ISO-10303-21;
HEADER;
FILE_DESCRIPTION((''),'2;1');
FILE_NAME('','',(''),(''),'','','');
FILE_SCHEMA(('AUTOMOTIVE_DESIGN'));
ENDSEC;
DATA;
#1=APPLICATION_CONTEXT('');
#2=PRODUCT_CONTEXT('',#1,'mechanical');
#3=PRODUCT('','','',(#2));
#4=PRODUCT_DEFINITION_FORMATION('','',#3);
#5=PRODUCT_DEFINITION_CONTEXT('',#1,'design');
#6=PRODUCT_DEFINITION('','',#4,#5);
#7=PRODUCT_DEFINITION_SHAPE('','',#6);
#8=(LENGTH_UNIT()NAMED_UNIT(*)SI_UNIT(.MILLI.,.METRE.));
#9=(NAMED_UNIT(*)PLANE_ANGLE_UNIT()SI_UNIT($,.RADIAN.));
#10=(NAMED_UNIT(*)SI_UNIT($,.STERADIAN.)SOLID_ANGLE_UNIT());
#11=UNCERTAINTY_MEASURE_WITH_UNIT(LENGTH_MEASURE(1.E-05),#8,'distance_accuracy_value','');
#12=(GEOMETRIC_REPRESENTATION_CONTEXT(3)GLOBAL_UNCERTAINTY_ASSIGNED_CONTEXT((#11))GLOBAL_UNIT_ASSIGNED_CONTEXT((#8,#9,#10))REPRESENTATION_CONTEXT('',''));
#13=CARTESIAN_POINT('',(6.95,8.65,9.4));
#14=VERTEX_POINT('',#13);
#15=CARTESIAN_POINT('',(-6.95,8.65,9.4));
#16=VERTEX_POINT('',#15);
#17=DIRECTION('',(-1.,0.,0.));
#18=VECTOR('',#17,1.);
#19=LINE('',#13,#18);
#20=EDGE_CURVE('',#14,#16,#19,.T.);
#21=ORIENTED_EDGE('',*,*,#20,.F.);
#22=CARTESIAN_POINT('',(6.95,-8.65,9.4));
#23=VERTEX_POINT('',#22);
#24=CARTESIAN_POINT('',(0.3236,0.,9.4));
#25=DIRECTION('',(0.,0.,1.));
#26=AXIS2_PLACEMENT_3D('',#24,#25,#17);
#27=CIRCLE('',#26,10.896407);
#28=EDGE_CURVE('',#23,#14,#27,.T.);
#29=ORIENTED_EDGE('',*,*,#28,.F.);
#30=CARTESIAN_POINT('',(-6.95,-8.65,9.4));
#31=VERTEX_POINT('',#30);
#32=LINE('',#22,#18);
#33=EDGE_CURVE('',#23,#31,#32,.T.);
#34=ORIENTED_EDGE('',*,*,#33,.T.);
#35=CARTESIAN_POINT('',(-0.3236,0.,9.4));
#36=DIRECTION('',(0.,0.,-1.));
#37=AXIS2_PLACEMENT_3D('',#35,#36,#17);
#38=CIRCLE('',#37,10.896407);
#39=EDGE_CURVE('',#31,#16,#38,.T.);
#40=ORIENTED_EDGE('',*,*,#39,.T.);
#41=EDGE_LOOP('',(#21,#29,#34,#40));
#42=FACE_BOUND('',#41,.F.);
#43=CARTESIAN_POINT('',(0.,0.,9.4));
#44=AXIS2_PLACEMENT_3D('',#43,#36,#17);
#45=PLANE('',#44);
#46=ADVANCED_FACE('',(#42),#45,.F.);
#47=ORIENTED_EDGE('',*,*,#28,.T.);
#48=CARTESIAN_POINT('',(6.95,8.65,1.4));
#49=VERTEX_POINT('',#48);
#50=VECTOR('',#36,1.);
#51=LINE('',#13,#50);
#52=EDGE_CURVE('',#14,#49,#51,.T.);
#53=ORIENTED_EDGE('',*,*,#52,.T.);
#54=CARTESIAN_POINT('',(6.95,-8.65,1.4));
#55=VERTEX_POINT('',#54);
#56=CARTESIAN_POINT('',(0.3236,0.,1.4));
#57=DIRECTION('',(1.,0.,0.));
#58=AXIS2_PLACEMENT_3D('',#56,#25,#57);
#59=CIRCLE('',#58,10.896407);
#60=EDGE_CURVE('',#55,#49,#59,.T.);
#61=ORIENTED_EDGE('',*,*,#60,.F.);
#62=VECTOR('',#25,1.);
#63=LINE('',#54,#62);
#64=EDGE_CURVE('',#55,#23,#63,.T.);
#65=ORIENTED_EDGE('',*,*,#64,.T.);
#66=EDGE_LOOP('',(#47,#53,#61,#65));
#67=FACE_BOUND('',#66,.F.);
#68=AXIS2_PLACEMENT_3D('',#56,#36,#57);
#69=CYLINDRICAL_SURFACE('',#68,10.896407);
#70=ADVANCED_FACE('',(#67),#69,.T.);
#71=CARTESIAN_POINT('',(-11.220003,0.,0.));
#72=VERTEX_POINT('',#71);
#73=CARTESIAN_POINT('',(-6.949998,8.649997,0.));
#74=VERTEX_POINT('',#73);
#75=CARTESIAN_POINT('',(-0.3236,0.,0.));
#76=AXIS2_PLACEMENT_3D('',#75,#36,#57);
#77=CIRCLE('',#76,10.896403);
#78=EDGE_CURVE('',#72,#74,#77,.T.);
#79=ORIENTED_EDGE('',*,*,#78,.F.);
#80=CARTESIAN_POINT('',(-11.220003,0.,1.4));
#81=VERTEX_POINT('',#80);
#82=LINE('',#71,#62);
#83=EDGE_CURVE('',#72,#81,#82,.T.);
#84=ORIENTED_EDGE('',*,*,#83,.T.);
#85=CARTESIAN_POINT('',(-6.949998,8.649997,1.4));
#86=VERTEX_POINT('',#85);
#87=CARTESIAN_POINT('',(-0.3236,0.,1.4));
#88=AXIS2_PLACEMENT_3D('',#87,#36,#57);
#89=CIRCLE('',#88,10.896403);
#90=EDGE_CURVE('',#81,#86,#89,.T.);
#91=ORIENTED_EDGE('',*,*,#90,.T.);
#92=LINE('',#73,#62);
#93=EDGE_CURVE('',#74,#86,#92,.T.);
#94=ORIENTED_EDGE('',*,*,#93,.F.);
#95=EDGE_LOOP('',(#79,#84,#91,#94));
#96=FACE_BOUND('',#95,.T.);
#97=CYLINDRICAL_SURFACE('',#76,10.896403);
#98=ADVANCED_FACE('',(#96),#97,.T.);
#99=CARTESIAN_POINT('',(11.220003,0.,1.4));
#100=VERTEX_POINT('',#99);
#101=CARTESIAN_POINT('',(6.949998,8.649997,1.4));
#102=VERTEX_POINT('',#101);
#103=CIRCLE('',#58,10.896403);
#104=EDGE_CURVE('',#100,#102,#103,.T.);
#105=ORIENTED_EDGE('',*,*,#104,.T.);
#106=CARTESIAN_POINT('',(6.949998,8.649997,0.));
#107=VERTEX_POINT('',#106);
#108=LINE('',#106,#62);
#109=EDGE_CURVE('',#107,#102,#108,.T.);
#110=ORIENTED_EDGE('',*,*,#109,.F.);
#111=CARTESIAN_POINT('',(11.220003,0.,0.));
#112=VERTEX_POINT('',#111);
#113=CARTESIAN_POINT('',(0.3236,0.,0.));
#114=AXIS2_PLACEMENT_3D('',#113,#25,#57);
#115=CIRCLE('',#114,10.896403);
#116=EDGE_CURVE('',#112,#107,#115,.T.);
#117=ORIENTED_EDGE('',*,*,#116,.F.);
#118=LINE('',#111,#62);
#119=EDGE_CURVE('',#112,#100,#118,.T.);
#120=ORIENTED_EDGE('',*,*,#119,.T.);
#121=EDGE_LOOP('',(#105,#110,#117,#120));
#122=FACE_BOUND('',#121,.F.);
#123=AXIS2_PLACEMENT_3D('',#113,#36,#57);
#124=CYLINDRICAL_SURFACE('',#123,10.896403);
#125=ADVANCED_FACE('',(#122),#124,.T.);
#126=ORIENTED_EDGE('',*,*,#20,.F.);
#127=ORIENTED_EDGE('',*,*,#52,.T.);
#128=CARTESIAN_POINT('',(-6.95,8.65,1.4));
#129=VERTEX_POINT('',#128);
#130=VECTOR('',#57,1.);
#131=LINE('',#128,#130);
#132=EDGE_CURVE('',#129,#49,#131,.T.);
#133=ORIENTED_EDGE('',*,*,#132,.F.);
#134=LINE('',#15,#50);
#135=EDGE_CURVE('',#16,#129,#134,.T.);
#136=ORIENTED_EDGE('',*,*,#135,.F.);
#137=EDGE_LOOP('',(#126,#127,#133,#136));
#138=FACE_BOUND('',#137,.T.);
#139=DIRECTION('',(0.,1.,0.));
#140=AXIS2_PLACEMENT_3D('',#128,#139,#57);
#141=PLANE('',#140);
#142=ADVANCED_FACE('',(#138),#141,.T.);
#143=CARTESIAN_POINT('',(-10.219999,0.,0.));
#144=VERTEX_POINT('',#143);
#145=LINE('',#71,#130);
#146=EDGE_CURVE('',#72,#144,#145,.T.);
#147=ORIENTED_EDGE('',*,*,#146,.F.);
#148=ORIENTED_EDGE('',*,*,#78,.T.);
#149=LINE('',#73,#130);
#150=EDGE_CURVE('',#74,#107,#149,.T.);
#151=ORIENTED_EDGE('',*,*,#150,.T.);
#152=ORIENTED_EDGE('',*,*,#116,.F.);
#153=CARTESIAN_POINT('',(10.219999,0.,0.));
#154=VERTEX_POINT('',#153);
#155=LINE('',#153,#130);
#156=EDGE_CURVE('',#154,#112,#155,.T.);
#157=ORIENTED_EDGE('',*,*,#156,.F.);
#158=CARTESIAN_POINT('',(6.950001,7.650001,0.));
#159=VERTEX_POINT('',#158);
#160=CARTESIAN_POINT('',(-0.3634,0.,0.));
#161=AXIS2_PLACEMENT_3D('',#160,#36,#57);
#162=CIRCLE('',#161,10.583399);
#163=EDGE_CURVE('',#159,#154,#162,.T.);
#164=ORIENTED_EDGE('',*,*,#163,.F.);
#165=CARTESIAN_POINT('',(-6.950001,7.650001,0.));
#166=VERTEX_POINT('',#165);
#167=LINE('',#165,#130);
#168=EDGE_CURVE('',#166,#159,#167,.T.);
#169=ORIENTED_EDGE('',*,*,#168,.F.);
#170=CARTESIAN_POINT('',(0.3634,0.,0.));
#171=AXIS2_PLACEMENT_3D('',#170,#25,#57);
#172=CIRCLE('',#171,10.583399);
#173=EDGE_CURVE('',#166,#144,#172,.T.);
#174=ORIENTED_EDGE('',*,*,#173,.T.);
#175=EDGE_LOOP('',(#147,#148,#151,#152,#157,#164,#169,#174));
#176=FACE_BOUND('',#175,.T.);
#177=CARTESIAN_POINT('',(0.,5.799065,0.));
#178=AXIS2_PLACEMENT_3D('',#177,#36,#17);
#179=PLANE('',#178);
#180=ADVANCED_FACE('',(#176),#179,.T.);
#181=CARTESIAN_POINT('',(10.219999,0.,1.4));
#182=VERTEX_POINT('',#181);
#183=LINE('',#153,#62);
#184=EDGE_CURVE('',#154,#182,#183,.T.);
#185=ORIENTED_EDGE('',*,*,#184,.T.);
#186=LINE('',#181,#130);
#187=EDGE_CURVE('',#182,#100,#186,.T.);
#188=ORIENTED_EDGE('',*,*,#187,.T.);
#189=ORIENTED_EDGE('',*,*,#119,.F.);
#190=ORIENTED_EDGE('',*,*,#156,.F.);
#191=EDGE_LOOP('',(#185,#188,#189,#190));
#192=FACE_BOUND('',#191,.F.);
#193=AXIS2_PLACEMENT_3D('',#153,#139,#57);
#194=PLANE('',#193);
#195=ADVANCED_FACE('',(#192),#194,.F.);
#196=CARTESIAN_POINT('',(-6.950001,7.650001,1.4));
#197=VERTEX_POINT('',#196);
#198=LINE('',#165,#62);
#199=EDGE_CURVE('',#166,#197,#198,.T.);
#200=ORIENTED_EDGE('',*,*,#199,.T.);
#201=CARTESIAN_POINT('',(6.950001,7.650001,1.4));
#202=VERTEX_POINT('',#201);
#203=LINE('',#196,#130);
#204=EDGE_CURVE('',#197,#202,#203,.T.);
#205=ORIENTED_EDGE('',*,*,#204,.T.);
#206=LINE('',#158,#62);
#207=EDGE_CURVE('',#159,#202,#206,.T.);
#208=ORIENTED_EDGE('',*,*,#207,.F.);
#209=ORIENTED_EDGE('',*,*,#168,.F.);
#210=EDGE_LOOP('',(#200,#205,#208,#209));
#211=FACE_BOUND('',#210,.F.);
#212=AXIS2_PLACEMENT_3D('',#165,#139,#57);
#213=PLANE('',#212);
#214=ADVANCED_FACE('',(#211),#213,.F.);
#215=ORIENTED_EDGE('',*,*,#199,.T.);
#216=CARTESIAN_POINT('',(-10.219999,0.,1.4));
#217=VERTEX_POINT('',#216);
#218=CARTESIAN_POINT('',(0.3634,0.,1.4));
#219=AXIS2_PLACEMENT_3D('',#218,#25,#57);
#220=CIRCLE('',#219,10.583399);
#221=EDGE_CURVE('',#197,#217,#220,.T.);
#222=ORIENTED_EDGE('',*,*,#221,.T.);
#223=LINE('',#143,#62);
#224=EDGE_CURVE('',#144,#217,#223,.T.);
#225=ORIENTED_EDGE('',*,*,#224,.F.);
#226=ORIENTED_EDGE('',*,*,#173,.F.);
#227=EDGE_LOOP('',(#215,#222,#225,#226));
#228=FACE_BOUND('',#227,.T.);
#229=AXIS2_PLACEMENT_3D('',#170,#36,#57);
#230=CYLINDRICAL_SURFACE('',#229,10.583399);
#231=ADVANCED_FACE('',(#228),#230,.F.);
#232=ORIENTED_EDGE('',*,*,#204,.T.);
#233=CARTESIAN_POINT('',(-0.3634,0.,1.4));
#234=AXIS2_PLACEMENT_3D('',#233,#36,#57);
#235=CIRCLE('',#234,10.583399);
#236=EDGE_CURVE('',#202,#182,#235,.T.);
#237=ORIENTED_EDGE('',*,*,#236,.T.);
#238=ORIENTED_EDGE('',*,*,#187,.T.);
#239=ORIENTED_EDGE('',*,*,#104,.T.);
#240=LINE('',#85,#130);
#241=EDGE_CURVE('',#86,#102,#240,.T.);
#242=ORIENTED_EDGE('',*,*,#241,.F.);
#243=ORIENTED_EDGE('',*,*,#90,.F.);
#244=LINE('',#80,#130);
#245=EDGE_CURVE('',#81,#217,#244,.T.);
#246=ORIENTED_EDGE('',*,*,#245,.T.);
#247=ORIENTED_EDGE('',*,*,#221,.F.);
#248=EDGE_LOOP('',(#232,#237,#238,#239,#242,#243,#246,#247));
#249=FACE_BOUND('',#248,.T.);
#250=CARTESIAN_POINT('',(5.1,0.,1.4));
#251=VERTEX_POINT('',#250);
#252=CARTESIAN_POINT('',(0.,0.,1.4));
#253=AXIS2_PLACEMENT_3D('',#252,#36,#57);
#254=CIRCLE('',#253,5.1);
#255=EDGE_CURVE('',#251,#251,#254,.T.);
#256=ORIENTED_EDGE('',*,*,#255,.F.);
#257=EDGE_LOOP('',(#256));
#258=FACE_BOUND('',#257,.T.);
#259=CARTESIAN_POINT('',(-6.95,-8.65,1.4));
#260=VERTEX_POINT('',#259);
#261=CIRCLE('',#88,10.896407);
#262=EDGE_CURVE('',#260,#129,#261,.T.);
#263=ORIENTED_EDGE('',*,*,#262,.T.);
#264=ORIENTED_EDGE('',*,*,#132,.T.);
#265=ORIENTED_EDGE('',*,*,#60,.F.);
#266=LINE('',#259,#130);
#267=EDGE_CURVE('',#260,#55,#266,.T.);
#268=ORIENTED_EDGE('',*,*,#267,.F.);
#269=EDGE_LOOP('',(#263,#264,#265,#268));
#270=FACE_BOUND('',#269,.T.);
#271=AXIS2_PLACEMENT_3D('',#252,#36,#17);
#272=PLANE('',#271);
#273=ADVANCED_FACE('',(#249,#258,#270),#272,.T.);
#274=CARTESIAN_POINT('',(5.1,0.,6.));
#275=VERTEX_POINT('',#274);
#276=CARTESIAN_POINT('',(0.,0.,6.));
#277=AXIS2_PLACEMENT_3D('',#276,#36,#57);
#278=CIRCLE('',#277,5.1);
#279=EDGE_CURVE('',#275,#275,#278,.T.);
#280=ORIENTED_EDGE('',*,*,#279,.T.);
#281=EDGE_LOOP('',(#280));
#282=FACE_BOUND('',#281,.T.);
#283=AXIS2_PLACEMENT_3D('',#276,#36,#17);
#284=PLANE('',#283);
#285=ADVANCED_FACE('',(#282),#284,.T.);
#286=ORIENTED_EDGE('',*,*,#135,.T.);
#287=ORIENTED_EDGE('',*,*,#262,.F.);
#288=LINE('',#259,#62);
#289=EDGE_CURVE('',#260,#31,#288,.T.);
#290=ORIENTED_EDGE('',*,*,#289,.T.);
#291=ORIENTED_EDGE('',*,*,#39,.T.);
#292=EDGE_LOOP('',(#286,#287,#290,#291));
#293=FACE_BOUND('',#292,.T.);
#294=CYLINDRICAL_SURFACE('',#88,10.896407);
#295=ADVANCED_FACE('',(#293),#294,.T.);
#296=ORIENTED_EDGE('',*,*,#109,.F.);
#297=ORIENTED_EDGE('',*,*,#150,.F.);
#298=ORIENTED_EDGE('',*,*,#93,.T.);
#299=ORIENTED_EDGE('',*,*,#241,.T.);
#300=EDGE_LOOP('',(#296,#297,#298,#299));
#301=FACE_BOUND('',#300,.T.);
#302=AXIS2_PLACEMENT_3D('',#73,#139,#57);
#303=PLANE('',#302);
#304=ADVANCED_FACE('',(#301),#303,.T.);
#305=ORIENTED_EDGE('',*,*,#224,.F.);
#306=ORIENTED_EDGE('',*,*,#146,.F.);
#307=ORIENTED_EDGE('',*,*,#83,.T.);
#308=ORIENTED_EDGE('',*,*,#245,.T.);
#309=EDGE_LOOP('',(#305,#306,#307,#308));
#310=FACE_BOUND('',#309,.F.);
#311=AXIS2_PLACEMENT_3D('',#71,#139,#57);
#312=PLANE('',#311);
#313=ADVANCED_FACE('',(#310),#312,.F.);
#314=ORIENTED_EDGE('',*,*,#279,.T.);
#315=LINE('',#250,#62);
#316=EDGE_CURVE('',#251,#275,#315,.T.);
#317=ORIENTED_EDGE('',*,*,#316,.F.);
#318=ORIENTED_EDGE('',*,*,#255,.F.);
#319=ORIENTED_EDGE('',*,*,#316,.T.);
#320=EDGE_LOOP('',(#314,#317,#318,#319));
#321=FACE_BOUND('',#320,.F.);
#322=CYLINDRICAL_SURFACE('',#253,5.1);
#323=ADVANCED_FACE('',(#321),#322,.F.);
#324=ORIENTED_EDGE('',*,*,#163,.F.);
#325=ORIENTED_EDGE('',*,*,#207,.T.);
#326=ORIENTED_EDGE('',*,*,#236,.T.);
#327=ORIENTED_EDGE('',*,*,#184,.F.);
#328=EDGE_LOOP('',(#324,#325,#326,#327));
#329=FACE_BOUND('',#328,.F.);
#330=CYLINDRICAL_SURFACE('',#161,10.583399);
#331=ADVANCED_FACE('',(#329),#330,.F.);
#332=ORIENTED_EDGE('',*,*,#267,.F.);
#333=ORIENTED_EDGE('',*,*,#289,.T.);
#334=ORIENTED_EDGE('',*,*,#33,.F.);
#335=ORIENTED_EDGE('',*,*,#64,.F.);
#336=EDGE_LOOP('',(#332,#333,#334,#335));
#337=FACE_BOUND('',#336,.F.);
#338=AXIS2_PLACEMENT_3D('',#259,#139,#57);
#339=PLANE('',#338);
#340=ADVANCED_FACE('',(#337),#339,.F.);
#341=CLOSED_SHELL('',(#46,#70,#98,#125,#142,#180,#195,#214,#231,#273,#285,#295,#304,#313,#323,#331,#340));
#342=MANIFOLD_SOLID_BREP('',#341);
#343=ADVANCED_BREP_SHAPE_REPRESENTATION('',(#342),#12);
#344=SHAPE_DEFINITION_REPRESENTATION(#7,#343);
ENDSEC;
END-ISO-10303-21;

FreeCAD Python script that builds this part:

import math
import FreeCAD as App
import Part
import Sketcher

doc = App.newDocument("Part")
body = doc.addObject("PartDesign::Body", "Body")

# Sketch on XY plane
sketch1 = body.newObject("Sketcher::SketchObject", "Sketch")
sketch1.AttachmentSupport = (doc.getObject("XY_Plane"), [""])
sketch1.MapMode = "FlatFace"
sketch1.addGeometry(Part.LineSegment(App.Vector(6.95, 8.65, 0), App.Vector(-6.95, 8.65, 0)), False)
sketch1.addGeometry(Part.ArcOfCircle(Part.Circle(App.Vector(-0.3236, 0, 0), App.Vector(0, 0, 1), 10.8964), math.radians(127.454202), math.radians(180)), False)
sketch1.addGeometry(Part.LineSegment(App.Vector(-11.22, 0, 0), App.Vector(-10.22, 0, 0)), False)
sketch1.addGeometry(Part.ArcOfCircle(Part.Circle(App.Vector(0.3634, 0, 0), App.Vector(0, 0, 1), 10.583398), math.radians(133.711355), math.radians(180)), False)
sketch1.addGeometry(Part.LineSegment(App.Vector(-6.95, 7.65, 0), App.Vector(6.95, 7.65, 0)), False)
sketch1.addGeometry(Part.ArcOfCircle(Part.Circle(App.Vector(-0.3634, 0, 0), App.Vector(0, 0, 1), 10.583398), math.radians(0), math.radians(46.288645)), False)
sketch1.addGeometry(Part.LineSegment(App.Vector(10.22, 0, 0), App.Vector(11.22, 0, 0)), False)
sketch1.addGeometry(Part.ArcOfCircle(Part.Circle(App.Vector(0.3236, 0, 0), App.Vector(0, 0, 1), 10.8964), math.radians(0), math.radians(52.545798)), False)
sketch1.addConstraint(Sketcher.Constraint("Coincident", 0, 2, 1, 1))
sketch1.addConstraint(Sketcher.Constraint("Coincident", 1, 2, 2, 1))
sketch1.addConstraint(Sketcher.Constraint("Coincident", 2, 2, 3, 2))
sketch1.addConstraint(Sketcher.Constraint("Coincident", 3, 1, 4, 1))
sketch1.addConstraint(Sketcher.Constraint("Coincident", 4, 2, 5, 2))
sketch1.addConstraint(Sketcher.Constraint("Coincident", 5, 1, 6, 1))
sketch1.addConstraint(Sketcher.Constraint("Coincident", 6, 2, 7, 1))
sketch1.addConstraint(Sketcher.Constraint("Coincident", 7, 2, 0, 1))
sketch1.addConstraint(Sketcher.Constraint("Horizontal", 0))
sketch1.addConstraint(Sketcher.Constraint("Horizontal", 2))
sketch1.addConstraint(Sketcher.Constraint("Horizontal", 4))
sketch1.addConstraint(Sketcher.Constraint("Horizontal", 6))
sketch1.addConstraint(Sketcher.Constraint("Equal", 3, 5))
sketch1.addConstraint(Sketcher.Constraint("Equal", 1, 7))
sketch1.addConstraint(Sketcher.Constraint("Symmetric", 3, 3, 5, 3, -1, 1))
sketch1.addConstraint(Sketcher.Constraint("Symmetric", 1, 3, 7, 3, -1, 1))
sketch1.addConstraint(Sketcher.Constraint("PointOnObject", 1, 3, -1))
sketch1.addConstraint(Sketcher.Constraint("PointOnObject", 3, 3, -1))
sketch1.addConstraint(Sketcher.Constraint("PointOnObject", 1, 2, -1))
sketch1.addConstraint(Sketcher.Constraint("PointOnObject", 5, 1, -1))
sketch1.addConstraint(Sketcher.Constraint("Vertical", 0, 2, 3, 1))
sketch1.addConstraint(Sketcher.Constraint("DistanceX", 2, 1, 2, 2, 1.0))
sketch1.addConstraint(Sketcher.Constraint("DistanceX", 0, 2, 0, 1, 13.9))
sketch1.addConstraint(Sketcher.Constraint("DistanceY", 3, 1, 0, 2, 1.0))
sketch1.addConstraint(Sketcher.Constraint("Radius", 1, 10.8964))
sketch1.addConstraint(Sketcher.Constraint("Radius", 3, 10.5834))
pad1 = body.newObject("PartDesign::Pad", "Pad")
pad1.Profile = sketch1
pad1.Length = 1.4

# Sketch on XY plane
sketch2 = body.newObject("Sketcher::SketchObject", "Sketch001")
sketch2.AttachmentSupport = (doc.getObject("XY_Plane"), [""])
sketch2.MapMode = "FlatFace"
sketch2.AttachmentOffset = App.Placement(App.Vector(0, 0, 1.4), App.Rotation())
sketch2.addGeometry(Part.ArcOfCircle(Part.Circle(App.Vector(-0.3236, 0, 0), App.Vector(0, 0, 1), 10.896407), math.radians(127.454202), math.radians(232.545798)), False)
sketch2.addGeometry(Part.LineSegment(App.Vector(-6.95, -8.65, 0), App.Vector(6.95, -8.65, 0)), False)
sketch2.addGeometry(Part.ArcOfCircle(Part.Circle(App.Vector(0.3236, 0, 0), App.Vector(0, 0, 1), 10.896407), math.radians(-52.545798), math.radians(52.545798)), False)
sketch2.addGeometry(Part.LineSegment(App.Vector(6.95, 8.65, 0), App.Vector(-6.95, 8.65, 0)), False)
sketch2.addConstraint(Sketcher.Constraint("Coincident", 0, 2, 1, 1))
sketch2.addConstraint(Sketcher.Constraint("Coincident", 1, 2, 2, 1))
sketch2.addConstraint(Sketcher.Constraint("Coincident", 2, 2, 3, 1))
sketch2.addConstraint(Sketcher.Constraint("Coincident", 3, 2, 0, 1))
sketch2.addConstraint(Sketcher.Constraint("Horizontal", 1))
sketch2.addConstraint(Sketcher.Constraint("Horizontal", 3))
sketch2.addConstraint(Sketcher.Constraint("Equal", 0, 2))
sketch2.addConstraint(Sketcher.Constraint("Symmetric", 0, 3, 2, 3, -1, 1))
sketch2.addConstraint(Sketcher.Constraint("Symmetric", 1, 2, 2, 2, -1))
sketch2.addConstraint(Sketcher.Constraint("DistanceX", 1, 1, 1, 2, 13.9))
sketch2.addConstraint(Sketcher.Constraint("Radius", 0, 10.8964))
sketch2.addConstraint(Sketcher.Constraint("DistanceY", 1, 2, 2, 2, 17.3))
pad2 = body.newObject("PartDesign::Pad", "Pad001")
pad2.Profile = sketch2
pad2.Length = 5

# Sketch on XY plane
sketch3 = body.newObject("Sketcher::SketchObject", "Sketch002")
sketch3.AttachmentSupport = (doc.getObject("XY_Plane"), [""])
sketch3.MapMode = "FlatFace"
sketch3.AttachmentOffset = App.Placement(App.Vector(0, 0, 1.4), App.Rotation())
sketch3.addGeometry(Part.Circle(App.Vector(0, 0, 0), App.Vector(0, 0, 1), 5.1), False)
sketch3.addConstraint(Sketcher.Constraint("Coincident", 0, 3, -1, 1))
sketch3.addConstraint(Sketcher.Constraint("Diameter", 0, 10.2))
pocket1 = body.newObject("PartDesign::Pocket", "Pocket")
pocket1.Profile = sketch3
pocket1.Length = 4.6
pocket1.Reversed = True

# Sketch on XY plane
sketch4 = body.newObject("Sketcher::SketchObject", "Sketch003")
sketch4.AttachmentSupport = (doc.getObject("XY_Plane"), [""])
sketch4.MapMode = "FlatFace"
sketch4.AttachmentOffset = App.Placement(App.Vector(0, 0, 6.4), App.Rotation())
sketch4.addGeometry(Part.LineSegment(App.Vector(-6.95, -8.65, 0), App.Vector(6.95, -8.65, 0)), False)
sketch4.addGeometry(Part.ArcOfCircle(Part.Circle(App.Vector(0.3236, 0, 0), App.Vector(0, 0, 1), 10.896407), math.radians(-52.545798), math.radians(52.545798)), False)
sketch4.addGeometry(Part.LineSegment(App.Vector(6.95, 8.65, 0), App.Vector(-6.95, 8.65, 0)), False)
sketch4.addGeometry(Part.ArcOfCircle(Part.Circle(App.Vector(-0.3236, 0, 0), App.Vector(0, 0, 1), 10.896407), math.radians(127.454202), math.radians(232.545798)), False)
sketch4.addConstraint(Sketcher.Constraint("Coincident", 0, 2, 1, 1))
sketch4.addConstraint(Sketcher.Constraint("Coincident", 1, 2, 2, 1))
sketch4.addConstraint(Sketcher.Constraint("Coincident", 2, 2, 3, 1))
sketch4.addConstraint(Sketcher.Constraint("Coincident", 3, 2, 0, 1))
sketch4.addConstraint(Sketcher.Constraint("Horizontal", 0))
sketch4.addConstraint(Sketcher.Constraint("Horizontal", 2))
sketch4.addConstraint(Sketcher.Constraint("Equal", 1, 3))
sketch4.addConstraint(Sketcher.Constraint("Symmetric", 1, 3, 3, 3, -1, 1))
sketch4.addConstraint(Sketcher.Constraint("Symmetric", 0, 2, 1, 2, -1))
sketch4.addConstraint(Sketcher.Constraint("DistanceX", 0, 1, 0, 2, 13.9))
sketch4.addConstraint(Sketcher.Constraint("Radius", 1, 10.8964))
sketch4.addConstraint(Sketcher.Constraint("DistanceY", 0, 2, 1, 2, 17.3))
pad3 = body.newObject("PartDesign::Pad", "Pad002")
pad3.Profile = sketch4
pad3.Length = 3

doc.recompute()
